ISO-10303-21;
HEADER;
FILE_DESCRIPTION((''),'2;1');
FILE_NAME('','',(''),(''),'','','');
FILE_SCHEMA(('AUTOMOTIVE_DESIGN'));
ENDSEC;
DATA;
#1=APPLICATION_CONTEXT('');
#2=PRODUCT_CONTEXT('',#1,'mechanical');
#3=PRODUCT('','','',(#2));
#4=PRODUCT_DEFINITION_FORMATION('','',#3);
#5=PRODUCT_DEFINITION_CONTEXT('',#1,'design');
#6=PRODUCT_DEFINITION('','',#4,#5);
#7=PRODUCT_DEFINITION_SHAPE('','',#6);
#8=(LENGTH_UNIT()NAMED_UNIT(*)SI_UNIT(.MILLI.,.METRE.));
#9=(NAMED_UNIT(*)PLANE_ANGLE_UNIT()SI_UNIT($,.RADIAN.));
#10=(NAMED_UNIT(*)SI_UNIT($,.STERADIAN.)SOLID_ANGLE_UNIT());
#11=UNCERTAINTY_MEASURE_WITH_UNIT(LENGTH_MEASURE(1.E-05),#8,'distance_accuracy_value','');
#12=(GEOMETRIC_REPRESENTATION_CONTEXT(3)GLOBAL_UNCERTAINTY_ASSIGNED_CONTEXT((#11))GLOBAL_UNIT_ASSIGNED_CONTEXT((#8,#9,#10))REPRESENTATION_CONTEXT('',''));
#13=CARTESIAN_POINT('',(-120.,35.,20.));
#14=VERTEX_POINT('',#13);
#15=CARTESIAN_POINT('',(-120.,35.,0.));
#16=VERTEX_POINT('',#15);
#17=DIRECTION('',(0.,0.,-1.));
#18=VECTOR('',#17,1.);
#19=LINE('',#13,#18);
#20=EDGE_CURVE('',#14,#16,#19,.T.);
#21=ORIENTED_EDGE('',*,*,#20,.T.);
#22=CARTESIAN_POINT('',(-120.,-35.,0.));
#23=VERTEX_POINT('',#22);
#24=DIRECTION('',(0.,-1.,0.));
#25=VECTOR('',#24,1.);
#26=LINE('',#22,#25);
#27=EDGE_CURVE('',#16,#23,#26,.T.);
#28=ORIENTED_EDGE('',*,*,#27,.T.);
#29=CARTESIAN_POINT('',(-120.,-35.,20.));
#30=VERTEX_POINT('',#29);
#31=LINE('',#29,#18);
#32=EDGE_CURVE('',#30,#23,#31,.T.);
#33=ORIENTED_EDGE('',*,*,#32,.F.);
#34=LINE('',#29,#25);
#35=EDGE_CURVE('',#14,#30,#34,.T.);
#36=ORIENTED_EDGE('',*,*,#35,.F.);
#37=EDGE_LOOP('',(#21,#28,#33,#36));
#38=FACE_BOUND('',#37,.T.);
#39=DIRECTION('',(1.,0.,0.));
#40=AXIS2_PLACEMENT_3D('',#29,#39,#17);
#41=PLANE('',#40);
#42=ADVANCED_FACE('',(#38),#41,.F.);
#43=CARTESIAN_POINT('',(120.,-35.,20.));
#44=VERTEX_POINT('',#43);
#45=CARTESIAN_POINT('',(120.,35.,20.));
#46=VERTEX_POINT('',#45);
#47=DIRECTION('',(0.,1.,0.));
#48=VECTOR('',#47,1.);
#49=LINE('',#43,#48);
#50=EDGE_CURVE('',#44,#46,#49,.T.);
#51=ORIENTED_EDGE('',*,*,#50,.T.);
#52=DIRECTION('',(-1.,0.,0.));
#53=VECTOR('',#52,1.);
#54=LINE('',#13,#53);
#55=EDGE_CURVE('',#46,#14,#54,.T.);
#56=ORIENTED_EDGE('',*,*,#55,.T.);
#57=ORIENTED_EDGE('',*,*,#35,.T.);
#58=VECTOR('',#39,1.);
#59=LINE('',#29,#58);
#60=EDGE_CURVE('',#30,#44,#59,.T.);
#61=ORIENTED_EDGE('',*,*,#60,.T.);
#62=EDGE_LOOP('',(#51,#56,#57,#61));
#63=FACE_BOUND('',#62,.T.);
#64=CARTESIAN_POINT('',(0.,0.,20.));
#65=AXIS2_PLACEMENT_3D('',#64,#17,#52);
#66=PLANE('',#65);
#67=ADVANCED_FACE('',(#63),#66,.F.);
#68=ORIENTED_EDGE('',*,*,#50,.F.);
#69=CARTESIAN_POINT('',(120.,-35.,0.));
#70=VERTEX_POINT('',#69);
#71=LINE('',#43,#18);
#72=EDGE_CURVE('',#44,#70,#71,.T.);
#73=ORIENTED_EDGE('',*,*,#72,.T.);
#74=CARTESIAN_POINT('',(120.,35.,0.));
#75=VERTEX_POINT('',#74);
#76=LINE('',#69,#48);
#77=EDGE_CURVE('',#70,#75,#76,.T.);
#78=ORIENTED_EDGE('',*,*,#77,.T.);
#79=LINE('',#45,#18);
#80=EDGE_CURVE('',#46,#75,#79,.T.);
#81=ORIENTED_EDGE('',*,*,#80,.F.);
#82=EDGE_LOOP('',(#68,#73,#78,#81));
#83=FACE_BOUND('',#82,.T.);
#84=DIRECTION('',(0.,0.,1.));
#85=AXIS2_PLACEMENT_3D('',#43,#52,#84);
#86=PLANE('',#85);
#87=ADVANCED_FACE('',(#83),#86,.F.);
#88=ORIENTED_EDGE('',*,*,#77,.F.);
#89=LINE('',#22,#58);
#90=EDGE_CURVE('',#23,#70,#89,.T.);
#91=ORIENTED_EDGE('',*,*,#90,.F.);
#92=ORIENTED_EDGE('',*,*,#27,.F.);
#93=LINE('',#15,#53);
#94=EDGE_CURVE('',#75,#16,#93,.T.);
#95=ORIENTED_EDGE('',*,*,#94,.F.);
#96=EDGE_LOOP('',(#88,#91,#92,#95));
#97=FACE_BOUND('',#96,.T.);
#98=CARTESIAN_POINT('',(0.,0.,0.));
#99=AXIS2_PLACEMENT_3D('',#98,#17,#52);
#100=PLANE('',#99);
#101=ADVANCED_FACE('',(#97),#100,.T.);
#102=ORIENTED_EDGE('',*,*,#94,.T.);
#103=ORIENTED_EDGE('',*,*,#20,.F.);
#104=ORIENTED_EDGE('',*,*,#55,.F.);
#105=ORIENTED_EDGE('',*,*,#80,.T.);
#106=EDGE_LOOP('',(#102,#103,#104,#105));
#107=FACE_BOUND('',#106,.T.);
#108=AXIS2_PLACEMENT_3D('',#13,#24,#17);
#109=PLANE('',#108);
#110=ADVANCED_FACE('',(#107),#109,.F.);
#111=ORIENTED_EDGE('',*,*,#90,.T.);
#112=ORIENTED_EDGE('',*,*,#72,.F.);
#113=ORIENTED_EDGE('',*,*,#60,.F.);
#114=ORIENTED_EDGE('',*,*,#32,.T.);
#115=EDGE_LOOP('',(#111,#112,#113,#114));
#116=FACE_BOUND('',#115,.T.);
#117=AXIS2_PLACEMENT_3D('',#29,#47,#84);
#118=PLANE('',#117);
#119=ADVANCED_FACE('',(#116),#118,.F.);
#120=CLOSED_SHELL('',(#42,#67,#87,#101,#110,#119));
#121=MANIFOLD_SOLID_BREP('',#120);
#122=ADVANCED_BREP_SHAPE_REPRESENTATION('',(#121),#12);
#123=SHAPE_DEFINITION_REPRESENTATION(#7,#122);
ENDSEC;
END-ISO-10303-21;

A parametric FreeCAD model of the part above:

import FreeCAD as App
import Part
import Sketcher


def add_polygon(sketch, points):
    """Adds a closed chain of lines whose ends are joined by coincident constraints."""
    first, n = sketch.GeometryCount, len(points)
    for a, b in zip(points, points[1:] + points[:1]):
        sketch.addGeometry(Part.LineSegment(App.Vector(*a, 0), App.Vector(*b, 0)), False)
    for i in range(n):
        sketch.addConstraint(Sketcher.Constraint("Coincident", first + i, 2, first + (i + 1) % n, 1))

doc = App.newDocument("Part")
body = doc.addObject("PartDesign::Body", "Body")

sketch1 = body.newObject("Sketcher::SketchObject", "Sketch")
sketch1.AttachmentSupport = (doc.getObject("XY_Plane"), [""])
sketch1.MapMode = "FlatFace"
add_polygon(sketch1, [(-120, 35), (-120, -35), (120, -35), (120, 35)])
sketch1.addConstraint([
    Sketcher.Constraint("Vertical", 0),
    Sketcher.Constraint("Horizontal", 1),
    Sketcher.Constraint("Vertical", 2),
    Sketcher.Constraint("Horizontal", 3),
    Sketcher.Constraint("Symmetric", 0, 2, 2, 2, -1, 1),
    Sketcher.Constraint("DistanceX", 1, 1, 1, 2, 240.0),
    Sketcher.Constraint("DistanceY", 0, 2, 0, 1, 70.0),
])
pad1 = body.newObject("PartDesign::Pad", "Pad")
pad1.Profile = sketch1
pad1.Length = 20

doc.recompute()
